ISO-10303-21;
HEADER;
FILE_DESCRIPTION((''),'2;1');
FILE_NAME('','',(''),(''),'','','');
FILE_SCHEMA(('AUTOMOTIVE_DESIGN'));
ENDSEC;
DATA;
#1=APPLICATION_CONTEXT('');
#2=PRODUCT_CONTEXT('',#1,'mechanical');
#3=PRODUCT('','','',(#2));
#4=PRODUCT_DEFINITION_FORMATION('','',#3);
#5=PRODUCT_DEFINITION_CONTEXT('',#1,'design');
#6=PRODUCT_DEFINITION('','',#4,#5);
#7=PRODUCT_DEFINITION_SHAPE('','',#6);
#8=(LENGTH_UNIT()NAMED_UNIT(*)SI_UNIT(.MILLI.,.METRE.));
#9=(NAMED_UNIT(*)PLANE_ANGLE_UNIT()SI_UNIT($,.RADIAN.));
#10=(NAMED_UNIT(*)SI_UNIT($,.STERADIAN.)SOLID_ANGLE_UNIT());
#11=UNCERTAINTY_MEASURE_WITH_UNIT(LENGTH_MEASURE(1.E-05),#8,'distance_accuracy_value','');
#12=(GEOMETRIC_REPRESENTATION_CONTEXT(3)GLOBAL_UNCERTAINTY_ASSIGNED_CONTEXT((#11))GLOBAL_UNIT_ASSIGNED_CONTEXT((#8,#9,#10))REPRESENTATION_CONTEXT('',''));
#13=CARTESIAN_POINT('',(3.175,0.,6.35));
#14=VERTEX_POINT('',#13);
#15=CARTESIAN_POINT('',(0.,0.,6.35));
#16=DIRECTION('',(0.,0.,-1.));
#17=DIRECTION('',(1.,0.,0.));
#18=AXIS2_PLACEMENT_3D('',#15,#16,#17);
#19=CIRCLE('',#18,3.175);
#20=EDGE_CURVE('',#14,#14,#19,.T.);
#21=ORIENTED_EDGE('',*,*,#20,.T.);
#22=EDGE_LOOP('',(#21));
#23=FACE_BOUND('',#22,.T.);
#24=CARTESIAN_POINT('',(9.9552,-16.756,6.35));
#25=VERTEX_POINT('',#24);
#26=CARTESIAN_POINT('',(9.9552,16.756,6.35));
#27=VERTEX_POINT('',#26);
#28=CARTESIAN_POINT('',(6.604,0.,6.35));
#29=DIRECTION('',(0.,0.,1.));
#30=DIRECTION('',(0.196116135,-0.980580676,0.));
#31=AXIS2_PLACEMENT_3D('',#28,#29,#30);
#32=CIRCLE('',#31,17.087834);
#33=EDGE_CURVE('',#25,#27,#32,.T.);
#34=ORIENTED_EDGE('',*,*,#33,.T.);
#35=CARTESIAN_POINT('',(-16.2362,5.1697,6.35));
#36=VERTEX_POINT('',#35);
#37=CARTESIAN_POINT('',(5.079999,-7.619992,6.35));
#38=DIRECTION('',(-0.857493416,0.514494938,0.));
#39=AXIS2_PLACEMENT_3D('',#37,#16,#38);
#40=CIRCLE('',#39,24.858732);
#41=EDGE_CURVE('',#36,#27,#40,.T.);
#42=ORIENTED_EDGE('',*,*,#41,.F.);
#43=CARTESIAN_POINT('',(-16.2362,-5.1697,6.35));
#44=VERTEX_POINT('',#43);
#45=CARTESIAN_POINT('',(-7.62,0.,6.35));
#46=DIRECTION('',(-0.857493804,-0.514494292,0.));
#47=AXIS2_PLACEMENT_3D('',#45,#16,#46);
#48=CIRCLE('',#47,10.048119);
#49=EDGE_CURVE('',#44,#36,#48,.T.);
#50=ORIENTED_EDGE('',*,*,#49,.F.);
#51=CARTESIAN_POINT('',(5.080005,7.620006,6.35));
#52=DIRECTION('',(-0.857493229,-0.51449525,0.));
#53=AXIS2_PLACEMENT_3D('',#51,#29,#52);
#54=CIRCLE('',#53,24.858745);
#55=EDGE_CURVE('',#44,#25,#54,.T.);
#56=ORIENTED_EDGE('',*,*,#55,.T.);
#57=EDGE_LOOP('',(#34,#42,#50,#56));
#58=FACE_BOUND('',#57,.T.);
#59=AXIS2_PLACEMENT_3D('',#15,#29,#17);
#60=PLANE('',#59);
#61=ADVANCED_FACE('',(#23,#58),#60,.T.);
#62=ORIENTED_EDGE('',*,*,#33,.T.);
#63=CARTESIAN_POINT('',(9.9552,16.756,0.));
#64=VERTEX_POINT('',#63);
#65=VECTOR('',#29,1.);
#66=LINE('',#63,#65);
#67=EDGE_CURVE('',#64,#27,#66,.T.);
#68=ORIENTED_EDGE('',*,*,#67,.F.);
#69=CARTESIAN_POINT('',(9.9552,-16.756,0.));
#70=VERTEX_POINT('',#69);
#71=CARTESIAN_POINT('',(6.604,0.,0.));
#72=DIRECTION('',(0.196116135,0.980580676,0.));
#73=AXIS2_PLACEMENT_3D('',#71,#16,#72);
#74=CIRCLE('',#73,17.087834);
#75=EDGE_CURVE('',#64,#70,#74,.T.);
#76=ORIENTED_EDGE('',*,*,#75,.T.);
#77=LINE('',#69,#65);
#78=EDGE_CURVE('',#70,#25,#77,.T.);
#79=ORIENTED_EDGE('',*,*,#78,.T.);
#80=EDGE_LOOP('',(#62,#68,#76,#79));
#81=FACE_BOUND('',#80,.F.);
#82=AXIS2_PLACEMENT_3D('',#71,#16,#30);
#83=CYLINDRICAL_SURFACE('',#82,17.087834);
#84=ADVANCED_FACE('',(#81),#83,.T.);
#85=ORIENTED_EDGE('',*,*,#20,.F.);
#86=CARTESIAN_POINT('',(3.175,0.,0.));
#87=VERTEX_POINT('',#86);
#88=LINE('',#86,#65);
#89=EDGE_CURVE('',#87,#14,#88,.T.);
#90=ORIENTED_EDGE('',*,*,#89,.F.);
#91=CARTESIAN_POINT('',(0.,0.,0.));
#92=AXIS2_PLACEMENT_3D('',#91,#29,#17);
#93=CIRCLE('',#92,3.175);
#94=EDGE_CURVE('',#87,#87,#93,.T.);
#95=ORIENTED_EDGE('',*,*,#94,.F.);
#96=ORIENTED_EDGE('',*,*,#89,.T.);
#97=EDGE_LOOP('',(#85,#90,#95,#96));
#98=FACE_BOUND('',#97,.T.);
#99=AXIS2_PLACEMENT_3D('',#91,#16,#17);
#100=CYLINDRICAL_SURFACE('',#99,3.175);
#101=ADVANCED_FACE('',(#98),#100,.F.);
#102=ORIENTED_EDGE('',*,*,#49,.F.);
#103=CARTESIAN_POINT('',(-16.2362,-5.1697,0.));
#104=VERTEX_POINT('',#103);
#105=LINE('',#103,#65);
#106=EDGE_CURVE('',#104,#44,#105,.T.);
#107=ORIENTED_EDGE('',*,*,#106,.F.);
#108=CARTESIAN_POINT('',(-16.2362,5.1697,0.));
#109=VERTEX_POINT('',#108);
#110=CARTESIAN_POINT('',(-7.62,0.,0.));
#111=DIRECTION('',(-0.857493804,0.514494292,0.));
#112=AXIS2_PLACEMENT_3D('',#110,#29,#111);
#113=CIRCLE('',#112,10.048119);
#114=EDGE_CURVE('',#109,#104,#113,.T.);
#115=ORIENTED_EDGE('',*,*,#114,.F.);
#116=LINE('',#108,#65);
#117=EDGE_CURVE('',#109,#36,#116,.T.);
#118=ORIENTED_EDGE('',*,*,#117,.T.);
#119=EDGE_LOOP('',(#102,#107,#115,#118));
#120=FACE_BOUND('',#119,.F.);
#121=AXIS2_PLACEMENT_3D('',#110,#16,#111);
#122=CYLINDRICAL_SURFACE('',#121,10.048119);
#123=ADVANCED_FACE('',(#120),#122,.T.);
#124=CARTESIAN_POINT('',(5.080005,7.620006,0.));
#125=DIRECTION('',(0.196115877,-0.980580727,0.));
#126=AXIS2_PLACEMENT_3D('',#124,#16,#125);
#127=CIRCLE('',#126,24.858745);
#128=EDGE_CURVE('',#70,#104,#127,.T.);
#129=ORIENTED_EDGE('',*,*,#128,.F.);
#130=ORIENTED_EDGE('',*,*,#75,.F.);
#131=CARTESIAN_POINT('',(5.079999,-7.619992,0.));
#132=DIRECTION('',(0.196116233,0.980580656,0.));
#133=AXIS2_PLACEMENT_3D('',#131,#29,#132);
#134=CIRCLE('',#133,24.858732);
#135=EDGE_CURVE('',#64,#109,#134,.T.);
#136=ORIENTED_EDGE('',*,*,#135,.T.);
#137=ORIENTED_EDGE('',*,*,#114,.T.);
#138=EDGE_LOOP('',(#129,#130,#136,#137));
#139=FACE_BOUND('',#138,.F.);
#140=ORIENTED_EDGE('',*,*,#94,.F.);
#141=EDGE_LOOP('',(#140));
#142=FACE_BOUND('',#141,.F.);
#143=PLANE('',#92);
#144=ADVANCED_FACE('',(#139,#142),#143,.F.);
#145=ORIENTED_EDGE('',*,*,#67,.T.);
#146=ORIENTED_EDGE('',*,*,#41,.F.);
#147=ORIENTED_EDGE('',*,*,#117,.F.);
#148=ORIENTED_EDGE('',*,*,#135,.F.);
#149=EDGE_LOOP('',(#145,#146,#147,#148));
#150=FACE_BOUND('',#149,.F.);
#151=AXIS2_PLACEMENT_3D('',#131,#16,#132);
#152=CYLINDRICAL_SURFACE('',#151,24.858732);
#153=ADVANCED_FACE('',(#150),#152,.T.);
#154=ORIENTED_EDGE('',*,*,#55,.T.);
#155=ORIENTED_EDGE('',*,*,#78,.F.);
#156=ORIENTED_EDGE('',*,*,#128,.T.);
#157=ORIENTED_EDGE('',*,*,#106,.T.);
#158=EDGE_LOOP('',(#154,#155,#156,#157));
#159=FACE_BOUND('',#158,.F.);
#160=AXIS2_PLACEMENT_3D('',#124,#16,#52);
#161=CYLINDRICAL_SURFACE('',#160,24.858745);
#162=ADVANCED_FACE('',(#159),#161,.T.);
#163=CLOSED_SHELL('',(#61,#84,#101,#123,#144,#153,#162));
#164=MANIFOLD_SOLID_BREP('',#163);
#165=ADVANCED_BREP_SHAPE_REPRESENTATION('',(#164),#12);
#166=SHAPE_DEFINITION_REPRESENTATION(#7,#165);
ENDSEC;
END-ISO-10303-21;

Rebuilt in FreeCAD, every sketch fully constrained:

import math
import FreeCAD as App
import Part
import Sketcher
Q = App.Units.Quantity

doc = App.newDocument("Part")
params = doc.addObject("Spreadsheet::Sheet", "Params")
for row, (alias, value) in enumerate([
    ("sketch1_diameter", "0.25 in"),
    ("pad1_length", "0.25 in"),
], start=1):
    params.set(f"A{row}", alias)
    params.set(f"B{row}", "=" + value)
    params.setAlias(f"B{row}", alias)

body = doc.addObject("PartDesign::Body", "Body")

sketch1 = body.newObject("Sketcher::SketchObject", "Sketch")
sketch1.AttachmentSupport = (doc.getObject("XY_Plane"), [""])
sketch1.MapMode = "FlatFace"
sketch1.addGeometry([
    Part.ArcOfCircle(Part.Circle(App.Vector(-7.6, 0, 0), App.Vector(0, 0, 1), 10), math.radians(149), math.radians(211)),
    Part.ArcOfCircle(Part.Circle(App.Vector(5.1, 7.6, 0), App.Vector(0, 0, 1), 24.9), math.radians(-149), math.radians(-79)),
    Part.ArcOfCircle(Part.Circle(App.Vector(6.6, 0, 0), App.Vector(0, 0, 1), 17.1), math.radians(-79), math.radians(79)),
    Part.ArcOfCircle(Part.Circle(App.Vector(5.1, -7.6, 0), App.Vector(0, 0, 1), 24.9), math.radians(79), math.radians(149)),
    Part.Circle(App.Vector(0, 0, 0), App.Vector(0, 0, 1), 3.2),
], False)
sketch1.addConstraint([
    Sketcher.Constraint("Tangent", 0, 2, 1, 1),
    Sketcher.Constraint("Tangent", 1, 2, 2, 1),
    Sketcher.Constraint("Tangent", 2, 2, 3, 1),
    Sketcher.Constraint("Tangent", 3, 2, 0, 1),
    Sketcher.Constraint("Coincident", 4, 3, -1, 1),
    Sketcher.Constraint("Equal", 1, 3),
    Sketcher.Constraint("Symmetric", 1, 3, 3, 3, -1),
    Sketcher.Constraint("Diameter", 4, Q("0.25 in")),
    Sketcher.Constraint("DistanceX", 0, 3, -1, 1, Q("0.3 in")),
    Sketcher.Constraint("DistanceX", -1, 1, 1, 3, Q("0.2 in")),
    Sketcher.Constraint("DistanceY", -1, 1, 1, 3, Q("0.3 in")),
    Sketcher.Constraint("DistanceX", -1, 1, 2, 3, Q("0.26 in")),
    Sketcher.Constraint("Radius", 0, Q("0.3956 in")),
])
sketch1.setExpression("Constraints[7]", "Params.sketch1_diameter")
pad1 = body.newObject("PartDesign::Pad", "Pad")
pad1.Profile = sketch1
pad1.setExpression("Length", "Params.pad1_length")

doc.recompute()
